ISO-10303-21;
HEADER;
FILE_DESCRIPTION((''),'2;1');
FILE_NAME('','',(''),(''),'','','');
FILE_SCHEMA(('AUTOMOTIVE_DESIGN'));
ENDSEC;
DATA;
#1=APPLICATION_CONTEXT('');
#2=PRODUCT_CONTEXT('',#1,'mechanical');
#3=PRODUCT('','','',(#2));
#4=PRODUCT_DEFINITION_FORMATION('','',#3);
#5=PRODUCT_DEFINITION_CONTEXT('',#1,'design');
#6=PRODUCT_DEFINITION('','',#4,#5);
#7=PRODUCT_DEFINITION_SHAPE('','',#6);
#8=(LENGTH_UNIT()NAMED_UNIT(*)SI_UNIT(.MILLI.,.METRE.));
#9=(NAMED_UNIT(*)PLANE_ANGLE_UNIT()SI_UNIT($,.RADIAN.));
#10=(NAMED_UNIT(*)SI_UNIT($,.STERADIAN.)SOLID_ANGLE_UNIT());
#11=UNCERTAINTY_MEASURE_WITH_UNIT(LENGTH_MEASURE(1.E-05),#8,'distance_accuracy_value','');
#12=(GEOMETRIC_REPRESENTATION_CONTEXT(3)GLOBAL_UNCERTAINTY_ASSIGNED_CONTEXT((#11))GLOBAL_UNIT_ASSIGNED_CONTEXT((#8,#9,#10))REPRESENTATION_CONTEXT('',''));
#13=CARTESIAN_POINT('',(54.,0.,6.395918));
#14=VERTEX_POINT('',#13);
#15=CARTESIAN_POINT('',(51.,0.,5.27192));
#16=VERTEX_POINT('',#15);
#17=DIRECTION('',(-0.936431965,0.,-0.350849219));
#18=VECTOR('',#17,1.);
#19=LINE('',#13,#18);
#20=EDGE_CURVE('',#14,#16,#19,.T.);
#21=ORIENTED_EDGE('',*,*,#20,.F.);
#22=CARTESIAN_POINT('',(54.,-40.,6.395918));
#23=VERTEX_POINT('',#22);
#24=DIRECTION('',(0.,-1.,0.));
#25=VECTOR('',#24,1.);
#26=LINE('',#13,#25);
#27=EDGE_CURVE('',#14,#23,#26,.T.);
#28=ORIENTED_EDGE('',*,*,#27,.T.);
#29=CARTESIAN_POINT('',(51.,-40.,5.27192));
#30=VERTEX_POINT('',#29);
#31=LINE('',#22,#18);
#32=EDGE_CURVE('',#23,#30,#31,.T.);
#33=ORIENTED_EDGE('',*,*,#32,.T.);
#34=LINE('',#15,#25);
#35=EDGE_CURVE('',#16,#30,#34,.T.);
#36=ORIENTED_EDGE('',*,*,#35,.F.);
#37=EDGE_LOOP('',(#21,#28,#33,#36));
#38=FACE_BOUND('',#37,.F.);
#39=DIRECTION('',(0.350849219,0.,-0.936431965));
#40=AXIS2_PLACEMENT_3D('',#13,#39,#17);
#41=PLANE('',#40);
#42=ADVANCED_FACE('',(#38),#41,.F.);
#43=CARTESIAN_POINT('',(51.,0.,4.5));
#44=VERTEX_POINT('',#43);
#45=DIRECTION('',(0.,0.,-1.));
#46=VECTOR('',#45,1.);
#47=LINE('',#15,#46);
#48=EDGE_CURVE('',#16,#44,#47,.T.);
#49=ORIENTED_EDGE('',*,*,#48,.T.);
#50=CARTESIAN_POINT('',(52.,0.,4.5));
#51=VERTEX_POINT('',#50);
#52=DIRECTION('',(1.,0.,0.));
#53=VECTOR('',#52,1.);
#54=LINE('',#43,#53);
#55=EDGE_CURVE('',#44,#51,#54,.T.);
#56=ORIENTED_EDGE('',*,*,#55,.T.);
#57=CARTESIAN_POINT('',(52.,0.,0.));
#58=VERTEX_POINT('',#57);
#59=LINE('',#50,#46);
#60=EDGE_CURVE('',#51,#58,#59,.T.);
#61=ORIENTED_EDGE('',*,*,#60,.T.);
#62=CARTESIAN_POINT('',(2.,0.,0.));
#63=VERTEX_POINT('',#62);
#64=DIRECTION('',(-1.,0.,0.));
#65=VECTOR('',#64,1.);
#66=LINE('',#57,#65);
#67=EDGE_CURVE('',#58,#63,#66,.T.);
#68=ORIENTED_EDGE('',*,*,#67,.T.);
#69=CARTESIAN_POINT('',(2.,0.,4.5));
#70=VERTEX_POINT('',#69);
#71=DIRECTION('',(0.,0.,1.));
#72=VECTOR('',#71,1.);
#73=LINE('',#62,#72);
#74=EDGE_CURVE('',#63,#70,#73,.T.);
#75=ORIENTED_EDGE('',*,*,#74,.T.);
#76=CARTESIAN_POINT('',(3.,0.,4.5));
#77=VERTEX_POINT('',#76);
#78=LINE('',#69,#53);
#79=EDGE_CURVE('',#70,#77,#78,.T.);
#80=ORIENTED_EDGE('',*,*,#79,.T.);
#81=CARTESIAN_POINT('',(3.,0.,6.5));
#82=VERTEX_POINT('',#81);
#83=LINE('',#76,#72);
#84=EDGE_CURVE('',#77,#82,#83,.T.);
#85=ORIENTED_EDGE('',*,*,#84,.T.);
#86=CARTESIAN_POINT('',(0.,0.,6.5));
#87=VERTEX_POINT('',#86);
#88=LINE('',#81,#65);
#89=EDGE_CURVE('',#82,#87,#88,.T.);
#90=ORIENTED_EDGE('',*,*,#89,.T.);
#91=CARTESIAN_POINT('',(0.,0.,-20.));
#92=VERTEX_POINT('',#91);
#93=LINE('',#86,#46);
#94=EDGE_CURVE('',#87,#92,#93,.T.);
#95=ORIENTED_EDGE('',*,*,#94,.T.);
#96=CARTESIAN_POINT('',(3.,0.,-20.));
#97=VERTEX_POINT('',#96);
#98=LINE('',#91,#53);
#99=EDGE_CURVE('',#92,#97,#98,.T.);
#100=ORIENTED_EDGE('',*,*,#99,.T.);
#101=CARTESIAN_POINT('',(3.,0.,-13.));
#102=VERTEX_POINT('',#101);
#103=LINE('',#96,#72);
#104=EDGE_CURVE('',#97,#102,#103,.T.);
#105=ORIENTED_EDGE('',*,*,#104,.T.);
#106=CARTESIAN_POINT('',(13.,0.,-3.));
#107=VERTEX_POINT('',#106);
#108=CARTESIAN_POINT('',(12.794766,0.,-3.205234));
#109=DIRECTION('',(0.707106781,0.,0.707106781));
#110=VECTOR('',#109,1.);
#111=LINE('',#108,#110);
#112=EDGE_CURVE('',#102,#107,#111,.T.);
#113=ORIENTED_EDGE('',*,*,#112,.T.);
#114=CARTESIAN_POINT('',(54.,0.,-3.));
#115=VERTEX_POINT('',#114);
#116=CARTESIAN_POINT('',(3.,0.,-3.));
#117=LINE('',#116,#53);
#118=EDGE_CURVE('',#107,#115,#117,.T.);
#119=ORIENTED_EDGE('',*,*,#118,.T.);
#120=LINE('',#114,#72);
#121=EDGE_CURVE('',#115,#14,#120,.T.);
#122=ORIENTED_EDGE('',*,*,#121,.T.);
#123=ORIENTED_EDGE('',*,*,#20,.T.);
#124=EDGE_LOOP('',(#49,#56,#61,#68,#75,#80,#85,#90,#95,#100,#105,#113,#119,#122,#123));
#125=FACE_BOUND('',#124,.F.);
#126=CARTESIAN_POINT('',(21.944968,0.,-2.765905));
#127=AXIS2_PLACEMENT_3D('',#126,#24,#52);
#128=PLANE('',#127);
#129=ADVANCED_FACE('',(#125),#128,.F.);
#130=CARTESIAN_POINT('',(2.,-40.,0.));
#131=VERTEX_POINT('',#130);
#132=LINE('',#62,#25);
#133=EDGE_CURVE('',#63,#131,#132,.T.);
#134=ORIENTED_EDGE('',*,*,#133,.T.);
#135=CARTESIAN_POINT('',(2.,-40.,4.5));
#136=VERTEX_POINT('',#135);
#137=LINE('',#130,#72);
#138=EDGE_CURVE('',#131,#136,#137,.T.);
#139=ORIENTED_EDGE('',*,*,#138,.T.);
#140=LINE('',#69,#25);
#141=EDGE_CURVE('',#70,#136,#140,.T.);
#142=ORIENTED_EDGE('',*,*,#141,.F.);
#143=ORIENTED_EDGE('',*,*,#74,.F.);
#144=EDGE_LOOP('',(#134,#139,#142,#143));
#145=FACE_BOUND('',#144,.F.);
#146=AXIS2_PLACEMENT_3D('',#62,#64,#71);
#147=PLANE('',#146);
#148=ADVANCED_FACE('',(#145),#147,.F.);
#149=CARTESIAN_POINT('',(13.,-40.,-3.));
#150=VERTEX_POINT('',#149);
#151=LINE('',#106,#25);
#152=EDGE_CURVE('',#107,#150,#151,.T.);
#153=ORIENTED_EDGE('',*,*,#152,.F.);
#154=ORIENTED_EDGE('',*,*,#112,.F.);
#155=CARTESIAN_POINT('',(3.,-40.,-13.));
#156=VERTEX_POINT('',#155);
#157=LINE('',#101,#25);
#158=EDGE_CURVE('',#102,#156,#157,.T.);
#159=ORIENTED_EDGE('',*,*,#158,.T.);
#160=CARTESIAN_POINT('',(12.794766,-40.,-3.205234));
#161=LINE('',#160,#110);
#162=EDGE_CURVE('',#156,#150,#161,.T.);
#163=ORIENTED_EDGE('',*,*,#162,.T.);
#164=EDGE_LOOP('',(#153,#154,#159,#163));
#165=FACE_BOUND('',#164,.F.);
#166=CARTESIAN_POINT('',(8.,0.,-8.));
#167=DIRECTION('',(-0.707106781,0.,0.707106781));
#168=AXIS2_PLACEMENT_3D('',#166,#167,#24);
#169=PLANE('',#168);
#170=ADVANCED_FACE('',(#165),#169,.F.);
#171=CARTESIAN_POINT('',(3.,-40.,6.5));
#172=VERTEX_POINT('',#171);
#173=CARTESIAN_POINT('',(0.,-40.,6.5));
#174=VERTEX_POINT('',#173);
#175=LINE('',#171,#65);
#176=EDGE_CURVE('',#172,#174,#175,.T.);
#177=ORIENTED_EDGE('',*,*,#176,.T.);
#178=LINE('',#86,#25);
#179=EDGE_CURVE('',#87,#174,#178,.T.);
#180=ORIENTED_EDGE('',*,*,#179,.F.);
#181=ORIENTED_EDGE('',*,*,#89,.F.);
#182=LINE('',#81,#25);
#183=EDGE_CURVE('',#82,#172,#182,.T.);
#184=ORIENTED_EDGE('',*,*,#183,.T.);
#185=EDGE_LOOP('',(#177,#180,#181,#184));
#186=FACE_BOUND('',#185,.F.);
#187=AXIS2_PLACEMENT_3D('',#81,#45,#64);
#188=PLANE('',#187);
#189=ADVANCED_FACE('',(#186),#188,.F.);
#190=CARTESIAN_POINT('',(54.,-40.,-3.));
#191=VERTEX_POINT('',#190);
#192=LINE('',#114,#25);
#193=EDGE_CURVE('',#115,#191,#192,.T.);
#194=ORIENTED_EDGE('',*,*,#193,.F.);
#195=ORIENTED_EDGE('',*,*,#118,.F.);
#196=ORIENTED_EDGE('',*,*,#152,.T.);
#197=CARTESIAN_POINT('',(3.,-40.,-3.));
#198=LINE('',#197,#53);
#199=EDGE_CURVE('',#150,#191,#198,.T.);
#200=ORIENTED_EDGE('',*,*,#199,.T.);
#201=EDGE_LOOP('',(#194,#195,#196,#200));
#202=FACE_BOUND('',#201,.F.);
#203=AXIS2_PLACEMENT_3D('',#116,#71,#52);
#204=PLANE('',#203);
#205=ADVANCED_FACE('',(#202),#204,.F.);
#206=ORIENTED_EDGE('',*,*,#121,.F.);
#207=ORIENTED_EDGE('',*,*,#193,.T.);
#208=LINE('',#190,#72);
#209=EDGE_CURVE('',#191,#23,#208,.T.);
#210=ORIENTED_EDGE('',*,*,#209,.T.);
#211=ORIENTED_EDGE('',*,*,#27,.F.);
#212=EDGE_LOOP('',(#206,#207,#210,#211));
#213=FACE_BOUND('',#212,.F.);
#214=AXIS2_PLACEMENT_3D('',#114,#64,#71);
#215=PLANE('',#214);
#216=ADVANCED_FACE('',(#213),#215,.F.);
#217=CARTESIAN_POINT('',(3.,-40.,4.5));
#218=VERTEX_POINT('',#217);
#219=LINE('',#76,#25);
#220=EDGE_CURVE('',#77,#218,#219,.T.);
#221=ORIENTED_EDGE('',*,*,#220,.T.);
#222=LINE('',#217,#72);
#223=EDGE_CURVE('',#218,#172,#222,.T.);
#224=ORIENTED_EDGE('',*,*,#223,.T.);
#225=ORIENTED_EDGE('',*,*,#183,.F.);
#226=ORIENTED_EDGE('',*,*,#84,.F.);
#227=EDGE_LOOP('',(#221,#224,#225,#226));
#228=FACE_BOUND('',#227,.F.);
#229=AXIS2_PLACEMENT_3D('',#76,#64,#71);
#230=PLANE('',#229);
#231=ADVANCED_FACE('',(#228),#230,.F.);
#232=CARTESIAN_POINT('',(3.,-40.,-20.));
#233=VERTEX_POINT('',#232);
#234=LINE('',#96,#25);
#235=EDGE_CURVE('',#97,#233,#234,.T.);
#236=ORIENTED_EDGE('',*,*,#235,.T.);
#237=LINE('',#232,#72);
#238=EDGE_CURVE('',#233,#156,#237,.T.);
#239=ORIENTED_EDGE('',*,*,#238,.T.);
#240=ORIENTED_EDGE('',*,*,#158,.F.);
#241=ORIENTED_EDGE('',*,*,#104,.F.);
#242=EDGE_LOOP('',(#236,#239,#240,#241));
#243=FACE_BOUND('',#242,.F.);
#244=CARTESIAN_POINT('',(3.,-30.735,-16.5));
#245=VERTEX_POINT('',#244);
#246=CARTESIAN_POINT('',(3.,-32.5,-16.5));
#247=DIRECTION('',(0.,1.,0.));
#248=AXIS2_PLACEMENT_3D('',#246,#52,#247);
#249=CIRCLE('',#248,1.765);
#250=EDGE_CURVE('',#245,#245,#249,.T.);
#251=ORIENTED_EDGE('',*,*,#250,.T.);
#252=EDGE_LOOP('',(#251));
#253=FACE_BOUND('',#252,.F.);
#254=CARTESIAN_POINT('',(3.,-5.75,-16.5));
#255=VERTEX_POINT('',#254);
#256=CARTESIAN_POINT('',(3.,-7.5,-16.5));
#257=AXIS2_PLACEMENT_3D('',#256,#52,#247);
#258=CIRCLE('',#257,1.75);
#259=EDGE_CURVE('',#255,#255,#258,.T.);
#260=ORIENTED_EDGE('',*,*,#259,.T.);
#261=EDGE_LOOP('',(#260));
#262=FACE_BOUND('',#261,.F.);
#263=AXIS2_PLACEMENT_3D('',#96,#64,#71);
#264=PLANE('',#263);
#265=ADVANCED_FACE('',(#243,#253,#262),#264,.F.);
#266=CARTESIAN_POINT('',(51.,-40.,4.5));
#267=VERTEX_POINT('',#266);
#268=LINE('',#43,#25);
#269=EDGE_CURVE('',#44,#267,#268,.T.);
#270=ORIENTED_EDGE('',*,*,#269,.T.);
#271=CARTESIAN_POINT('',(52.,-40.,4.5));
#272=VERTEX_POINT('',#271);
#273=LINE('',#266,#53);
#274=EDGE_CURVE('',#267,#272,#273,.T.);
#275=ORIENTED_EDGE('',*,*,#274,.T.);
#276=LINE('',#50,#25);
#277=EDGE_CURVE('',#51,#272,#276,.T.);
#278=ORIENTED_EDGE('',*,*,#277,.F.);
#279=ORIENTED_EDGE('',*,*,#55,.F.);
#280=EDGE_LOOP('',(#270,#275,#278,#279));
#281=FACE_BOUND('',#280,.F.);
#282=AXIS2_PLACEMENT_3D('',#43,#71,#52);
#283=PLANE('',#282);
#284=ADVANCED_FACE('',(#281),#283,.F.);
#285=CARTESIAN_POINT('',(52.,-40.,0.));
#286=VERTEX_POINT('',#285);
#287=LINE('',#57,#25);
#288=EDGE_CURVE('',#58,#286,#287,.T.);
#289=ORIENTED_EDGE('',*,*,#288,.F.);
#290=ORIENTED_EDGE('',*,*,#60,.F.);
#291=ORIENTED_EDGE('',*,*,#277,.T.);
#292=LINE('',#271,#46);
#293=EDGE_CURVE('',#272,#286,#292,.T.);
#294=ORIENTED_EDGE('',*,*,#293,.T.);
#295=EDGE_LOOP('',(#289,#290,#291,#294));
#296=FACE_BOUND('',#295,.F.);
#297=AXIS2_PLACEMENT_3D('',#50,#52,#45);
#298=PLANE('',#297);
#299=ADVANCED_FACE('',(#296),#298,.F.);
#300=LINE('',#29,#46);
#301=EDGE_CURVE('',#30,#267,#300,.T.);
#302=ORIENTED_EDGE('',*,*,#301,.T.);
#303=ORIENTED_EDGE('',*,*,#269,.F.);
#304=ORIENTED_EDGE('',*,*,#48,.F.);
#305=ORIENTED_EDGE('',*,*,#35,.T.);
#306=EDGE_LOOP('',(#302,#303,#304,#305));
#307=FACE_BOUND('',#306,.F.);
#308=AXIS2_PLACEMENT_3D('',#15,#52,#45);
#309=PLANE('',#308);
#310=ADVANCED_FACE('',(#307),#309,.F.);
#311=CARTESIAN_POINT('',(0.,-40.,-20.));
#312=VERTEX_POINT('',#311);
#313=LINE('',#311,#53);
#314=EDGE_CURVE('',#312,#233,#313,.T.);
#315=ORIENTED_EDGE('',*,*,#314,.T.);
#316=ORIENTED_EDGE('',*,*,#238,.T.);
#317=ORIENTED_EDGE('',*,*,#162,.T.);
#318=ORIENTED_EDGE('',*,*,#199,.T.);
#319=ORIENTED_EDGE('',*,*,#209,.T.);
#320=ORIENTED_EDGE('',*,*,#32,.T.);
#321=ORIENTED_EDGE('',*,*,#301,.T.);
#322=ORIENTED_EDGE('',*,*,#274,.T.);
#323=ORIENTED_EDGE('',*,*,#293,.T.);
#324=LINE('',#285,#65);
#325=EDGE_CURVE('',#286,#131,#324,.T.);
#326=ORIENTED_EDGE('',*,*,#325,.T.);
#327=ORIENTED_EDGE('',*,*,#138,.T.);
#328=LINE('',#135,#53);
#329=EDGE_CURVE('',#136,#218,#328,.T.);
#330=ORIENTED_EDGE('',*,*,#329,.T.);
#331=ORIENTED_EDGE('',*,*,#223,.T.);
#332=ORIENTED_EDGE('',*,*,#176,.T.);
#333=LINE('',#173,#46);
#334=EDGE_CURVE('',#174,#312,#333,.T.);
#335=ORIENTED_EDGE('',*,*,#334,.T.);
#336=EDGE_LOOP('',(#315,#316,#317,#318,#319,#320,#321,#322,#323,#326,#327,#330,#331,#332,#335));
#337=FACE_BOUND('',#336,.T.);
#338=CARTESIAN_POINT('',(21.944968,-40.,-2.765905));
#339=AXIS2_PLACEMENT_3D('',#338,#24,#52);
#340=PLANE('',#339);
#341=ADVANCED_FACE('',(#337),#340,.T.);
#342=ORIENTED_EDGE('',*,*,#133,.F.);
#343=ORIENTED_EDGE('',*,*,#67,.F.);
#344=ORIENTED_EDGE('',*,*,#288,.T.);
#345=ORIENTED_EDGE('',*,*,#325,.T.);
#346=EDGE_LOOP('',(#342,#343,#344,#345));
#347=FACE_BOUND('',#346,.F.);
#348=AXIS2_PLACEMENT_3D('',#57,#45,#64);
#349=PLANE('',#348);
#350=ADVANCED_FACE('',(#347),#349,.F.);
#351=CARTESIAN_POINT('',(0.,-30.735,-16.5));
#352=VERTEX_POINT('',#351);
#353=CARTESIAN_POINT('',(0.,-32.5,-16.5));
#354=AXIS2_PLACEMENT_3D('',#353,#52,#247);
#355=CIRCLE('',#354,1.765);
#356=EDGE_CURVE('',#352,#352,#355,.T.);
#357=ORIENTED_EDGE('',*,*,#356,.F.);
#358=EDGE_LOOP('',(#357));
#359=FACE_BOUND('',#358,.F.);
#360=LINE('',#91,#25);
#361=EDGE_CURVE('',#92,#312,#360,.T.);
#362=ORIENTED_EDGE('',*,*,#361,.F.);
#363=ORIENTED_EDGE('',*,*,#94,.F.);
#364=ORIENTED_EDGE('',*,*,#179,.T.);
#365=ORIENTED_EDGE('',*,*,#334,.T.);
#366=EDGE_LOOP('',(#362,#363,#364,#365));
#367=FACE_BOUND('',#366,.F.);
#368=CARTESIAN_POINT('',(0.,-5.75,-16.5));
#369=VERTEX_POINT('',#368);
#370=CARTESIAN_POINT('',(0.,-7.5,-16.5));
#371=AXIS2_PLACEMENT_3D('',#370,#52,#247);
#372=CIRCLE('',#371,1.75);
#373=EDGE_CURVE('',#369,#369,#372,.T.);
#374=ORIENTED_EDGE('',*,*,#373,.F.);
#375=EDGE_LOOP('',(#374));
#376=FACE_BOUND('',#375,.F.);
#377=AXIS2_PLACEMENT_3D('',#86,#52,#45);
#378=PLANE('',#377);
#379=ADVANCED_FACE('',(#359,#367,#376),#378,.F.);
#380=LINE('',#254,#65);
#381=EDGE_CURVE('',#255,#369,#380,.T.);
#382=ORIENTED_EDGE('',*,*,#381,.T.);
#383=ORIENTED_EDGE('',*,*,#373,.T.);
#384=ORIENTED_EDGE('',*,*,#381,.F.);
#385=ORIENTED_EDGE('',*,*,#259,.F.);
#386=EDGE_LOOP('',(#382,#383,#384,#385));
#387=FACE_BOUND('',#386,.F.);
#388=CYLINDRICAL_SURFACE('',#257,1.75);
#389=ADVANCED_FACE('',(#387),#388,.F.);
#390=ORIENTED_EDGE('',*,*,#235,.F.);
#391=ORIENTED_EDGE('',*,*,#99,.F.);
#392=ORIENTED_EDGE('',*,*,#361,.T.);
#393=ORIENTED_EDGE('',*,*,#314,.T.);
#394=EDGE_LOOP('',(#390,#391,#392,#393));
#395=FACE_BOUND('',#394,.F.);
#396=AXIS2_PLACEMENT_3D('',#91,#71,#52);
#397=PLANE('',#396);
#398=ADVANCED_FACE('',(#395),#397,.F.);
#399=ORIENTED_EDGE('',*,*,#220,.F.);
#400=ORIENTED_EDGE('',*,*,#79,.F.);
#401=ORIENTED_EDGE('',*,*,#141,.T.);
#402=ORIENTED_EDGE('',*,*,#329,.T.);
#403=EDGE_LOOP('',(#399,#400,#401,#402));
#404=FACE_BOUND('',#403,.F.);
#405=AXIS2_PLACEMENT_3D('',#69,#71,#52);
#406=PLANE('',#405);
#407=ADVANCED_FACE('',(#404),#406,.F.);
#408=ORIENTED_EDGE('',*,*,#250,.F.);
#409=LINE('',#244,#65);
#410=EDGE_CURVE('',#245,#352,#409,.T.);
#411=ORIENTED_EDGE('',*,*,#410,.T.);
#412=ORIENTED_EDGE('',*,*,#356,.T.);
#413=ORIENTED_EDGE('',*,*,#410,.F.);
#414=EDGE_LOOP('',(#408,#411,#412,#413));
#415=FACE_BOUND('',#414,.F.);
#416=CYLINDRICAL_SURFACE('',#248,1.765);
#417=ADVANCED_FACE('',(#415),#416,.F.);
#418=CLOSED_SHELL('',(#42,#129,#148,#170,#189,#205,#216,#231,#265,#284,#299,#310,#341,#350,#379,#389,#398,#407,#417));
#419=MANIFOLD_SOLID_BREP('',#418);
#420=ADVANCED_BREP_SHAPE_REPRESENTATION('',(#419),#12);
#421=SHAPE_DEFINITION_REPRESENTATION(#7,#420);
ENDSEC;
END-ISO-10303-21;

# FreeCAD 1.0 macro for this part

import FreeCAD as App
import Part
import Sketcher

V = App.Vector
Q = App.Units.Quantity


def edges_at(feature, points):
    """Names of the edges that pass closest to the given points."""
    edges = feature.Shape.Edges
    near = lambda p: min(range(len(edges)), key=lambda i: edges[i].distToShape(Part.Vertex(*p))[0])
    return sorted({f"Edge{near(p) + 1}" for p in points})


def add_polygon(sketch, points):
    """Adds a closed chain of lines whose ends are joined by coincident constraints."""
    first, n = sketch.GeometryCount, len(points)
    for a, b in zip(points, points[1:] + points[:1]):
        sketch.addGeometry(Part.LineSegment(App.Vector(*a, 0), App.Vector(*b, 0)), False)
    for i in range(n):
        sketch.addConstraint(Sketcher.Constraint("Coincident", first + i, 2, first + (i + 1) % n, 1))

doc = App.newDocument("Part")
params = doc.addObject("Spreadsheet::Sheet", "Params")
for row, (alias, value) in enumerate([
    ("sketch1_width", "3 mm"),
    ("sketch1_width2", "51 mm"),
    ("sketch1_width3", "1 mm"),
    ("sketch1_width4", "50 mm"),
    ("sketch1_height", "17 mm"),
    ("pad1_length", "40 mm"),
    ("chamfer_size", "10 mm"),
    ("sketch2_diameter", "3.5 mm"),
    ("sketch2_diameter2", "3.53 mm"),
    ("pocket1_length", "25 mm"),
], start=1):
    params.set(f"A{row}", alias)
    params.set(f"B{row}", "=" + value)
    params.setAlias(f"B{row}", alias)

body = doc.addObject("PartDesign::Body", "Body")

sketch1 = body.newObject("Sketcher::SketchObject", "Sketch")
sketch1.AttachmentSupport = (doc.getObject("XZ_Plane"), [""])
sketch1.MapMode = "FlatFace"
add_polygon(sketch1, [(0, 6.5), (0, -20), (3, -20), (3, -3), (54, -3), (54, 6.4), (51, 5.3), (51, 4.5), (52, 4.5), (52, 0), (2, 0), (2, 4.5), (3, 4.5), (3, 6.5)])
sketch1.addConstraint([
    Sketcher.Constraint("Vertical", 0),
    Sketcher.Constraint("Horizontal", 1),
    Sketcher.Constraint("Vertical", 2),
    Sketcher.Constraint("Horizontal", 3),
    Sketcher.Constraint("Vertical", 4),
    Sketcher.Constraint("Vertical", 6),
    Sketcher.Constraint("Horizontal", 7),
    Sketcher.Constraint("Vertical", 8),
    Sketcher.Constraint("Horizontal", 9),
    Sketcher.Constraint("Vertical", 10),
    Sketcher.Constraint("Horizontal", 11),
    Sketcher.Constraint("Vertical", 12),
    Sketcher.Constraint("Horizontal", 13),
    Sketcher.Constraint("PointOnObject", 0, 2, -2),
    Sketcher.Constraint("PointOnObject", 8, 2, -1),
    Sketcher.Constraint("Horizontal", 7, 2, 10, 2),
    Sketcher.Constraint("Vertical", 2, 2, 11, 2),
    Sketcher.Constraint("Equal", 7, 11),
    Sketcher.Constraint("DistanceX", 1, 1, 1, 2, Q("3 mm")),
    Sketcher.Constraint("DistanceX", 3, 1, 3, 2, Q("51 mm")),
    Sketcher.Constraint("DistanceX", 7, 1, 7, 2, Q("1 mm")),
    Sketcher.Constraint("DistanceX", 9, 2, 9, 1, Q("50 mm")),
    Sketcher.Constraint("DistanceY", 2, 1, 2, 2, Q("17 mm")),
    Sketcher.Constraint("DistanceY", 12, 1, 12, 2, Q("2 mm")),
    Sketcher.Constraint("DistanceY", 0, 2, 0, 1, Q("26.5 mm")),
    Sketcher.Constraint("DistanceY", 8, 2, 8, 1, Q("4.5 mm")),
    Sketcher.Constraint("DistanceY", 5, 2, 4, 2, Q("1.123998 mm")),
    Sketcher.Constraint("DistanceY", 6, 2, 6, 1, Q("0.77192 mm")),
])
sketch1.setExpression("Constraints[32]", "Params.sketch1_width")
sketch1.setExpression("Constraints[33]", "Params.sketch1_width2")
sketch1.setExpression("Constraints[34]", "Params.sketch1_width3")
sketch1.setExpression("Constraints[35]", "Params.sketch1_width4")
sketch1.setExpression("Constraints[36]", "Params.sketch1_height")
pad1 = body.newObject("PartDesign::Pad", "Pad")
pad1.Profile = sketch1
pad1.setExpression("Length", "Params.pad1_length")
doc.recompute()

chamfer = body.newObject("PartDesign::Chamfer", "Chamfer")
chamfer.Base = (pad1, edges_at(pad1, [(3, -20, -3)]))
chamfer.setExpression("Size", "Params.chamfer_size")

sketch2 = body.newObject("Sketcher::SketchObject", "Sketch001")
sketch2.AttachmentSupport = (doc.getObject("YZ_Plane"), [""])
sketch2.MapMode = "FlatFace"
sketch2.AttachmentOffset = App.Placement(V(0, 0, 3), App.Rotation())
sketch2.addGeometry([
    Part.Circle(V(-32.5, -16.5, 0), V(0, 0, 1), 1.8),
    Part.Circle(V(-7.5, -16.5, 0), V(0, 0, 1), 1.8),
], False)
sketch2.addConstraint([
    Sketcher.Constraint("Horizontal", 0, 3, 1, 3),
    Sketcher.Constraint("Diameter", 1, Q("3.5 mm")),
    Sketcher.Constraint("Diameter", 0, Q("3.53 mm")),
    Sketcher.Constraint("DistanceX", 0, 3, 1, 3, Q("25 mm")),
    Sketcher.Constraint("DistanceX", 0, 3, -1, 1, Q("32.5 mm")),
    Sketcher.Constraint("DistanceY", 0, 3, -1, 1, Q("16.5 mm")),
])
sketch2.setExpression("Constraints[1]", "Params.sketch2_diameter")
sketch2.setExpression("Constraints[2]", "Params.sketch2_diameter2")
pocket1 = body.newObject("PartDesign::Pocket", "Pocket")
pocket1.Profile = sketch2
pocket1.setExpression("Length", "Params.pocket1_length")

doc.recompute()
